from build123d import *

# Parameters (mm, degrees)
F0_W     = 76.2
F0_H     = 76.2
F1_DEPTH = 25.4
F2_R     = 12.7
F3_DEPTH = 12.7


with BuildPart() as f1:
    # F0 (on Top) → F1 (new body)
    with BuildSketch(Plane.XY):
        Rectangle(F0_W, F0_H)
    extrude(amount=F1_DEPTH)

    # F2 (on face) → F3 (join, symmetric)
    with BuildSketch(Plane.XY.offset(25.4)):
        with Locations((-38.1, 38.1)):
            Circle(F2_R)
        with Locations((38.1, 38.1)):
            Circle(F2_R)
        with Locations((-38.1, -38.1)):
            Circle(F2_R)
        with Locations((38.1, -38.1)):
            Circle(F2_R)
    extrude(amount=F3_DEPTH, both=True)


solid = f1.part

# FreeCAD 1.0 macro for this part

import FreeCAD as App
import Part
import Sketcher
from FreeCAD import Vector
Q = App.Units.Quantity


def add_polygon(sketch, points):
    """Adds a closed chain of lines whose ends are joined by coincident constraints."""
    first, n = sketch.GeometryCount, len(points)
    for a, b in zip(points, points[1:] + points[:1]):
        sketch.addGeometry(Part.LineSegment(App.Vector(*a, 0), App.Vector(*b, 0)), False)
    for i in range(n):
        sketch.addConstraint(Sketcher.Constraint("Coincident", first + i, 2, first + (i + 1) % n, 1))

doc = App.newDocument("Part")
body = doc.addObject("PartDesign::Body", "Body")

sketch1 = doc.addObject("Sketcher::SketchObject", "Sketch")
body.addObject(sketch1)
sketch1.AttachmentSupport = (doc.XY_Plane, [""])
sketch1.MapMode = "FlatFace"
add_polygon(sketch1, [(-38.1, 38.1), (-38.1, -38.1), (38.1, -38.1), (38.1, 38.1)])
sketch1.addConstraint([
    Sketcher.Constraint("Vertical", 0),
    Sketcher.Constraint("Horizontal", 1),
    Sketcher.Constraint("Vertical", 2),
    Sketcher.Constraint("Horizontal", 3),
    Sketcher.Constraint("Symmetric", 0, 2, 2, 2, -1, 1),
    Sketcher.Constraint("Equal", 3, 0),
    Sketcher.Constraint("DistanceX", 1, 1, 1, 2, Q("3 in")),
])
pad1 = doc.addObject("PartDesign::Pad", "Pad")
body.addObject(pad1)
pad1.Profile = sketch1
pad1.Length = Q("1 in")

sketch2 = doc.addObject("Sketcher::SketchObject", "Sketch001")
body.addObject(sketch2)
sketch2.AttachmentSupport = (doc.XY_Plane, [""])
sketch2.MapMode = "FlatFace"
sketch2.AttachmentOffset = App.Placement(Vector(0, 0, 1 * 25.4), App.Rotation())
sketch2.addGeometry([
    Part.Circle(Vector(-38.1, 38.1, 0), Vector(0, 0, 1), 12.7),
    Part.Circle(Vector(38.1, 38.1, 0), Vector(0, 0, 1), 12.7),
    Part.Circle(Vector(-38.1, -38.1, 0), Vector(0, 0, 1), 12.7),
    Part.Circle(Vector(38.1, -38.1, 0), Vector(0, 0, 1), 12.7),
], False)
sketch2.addConstraint([
    Sketcher.Constraint("Equal", 0, 1),
    Sketcher.Constraint("Equal", 1, 2),
    Sketcher.Constraint("Equal", 2, 3),
    Sketcher.Constraint("Symmetric", 1, 3, 2, 3, -1, 1),
    Sketcher.Constraint("Symmetric", 0, 3, 3, 3, -1, 1),
    Sketcher.Constraint("Symmetric", 0, 3, 1, 3, -2),
    Sketcher.Constraint("Diameter", 0, Q("1 in")),
    Sketcher.Constraint("DistanceX", 0, 3, 1, 3, Q("3 in")),
    Sketcher.Constraint("DistanceY", 2, 3, 0, 3, Q("3 in")),
])
pad2 = doc.addObject("PartDesign::Pad", "Pad001")
body.addObject(pad2)
pad2.Profile = sketch2
pad2.Length = Q("1 in")
pad2.Midplane = True

doc.recompute()
